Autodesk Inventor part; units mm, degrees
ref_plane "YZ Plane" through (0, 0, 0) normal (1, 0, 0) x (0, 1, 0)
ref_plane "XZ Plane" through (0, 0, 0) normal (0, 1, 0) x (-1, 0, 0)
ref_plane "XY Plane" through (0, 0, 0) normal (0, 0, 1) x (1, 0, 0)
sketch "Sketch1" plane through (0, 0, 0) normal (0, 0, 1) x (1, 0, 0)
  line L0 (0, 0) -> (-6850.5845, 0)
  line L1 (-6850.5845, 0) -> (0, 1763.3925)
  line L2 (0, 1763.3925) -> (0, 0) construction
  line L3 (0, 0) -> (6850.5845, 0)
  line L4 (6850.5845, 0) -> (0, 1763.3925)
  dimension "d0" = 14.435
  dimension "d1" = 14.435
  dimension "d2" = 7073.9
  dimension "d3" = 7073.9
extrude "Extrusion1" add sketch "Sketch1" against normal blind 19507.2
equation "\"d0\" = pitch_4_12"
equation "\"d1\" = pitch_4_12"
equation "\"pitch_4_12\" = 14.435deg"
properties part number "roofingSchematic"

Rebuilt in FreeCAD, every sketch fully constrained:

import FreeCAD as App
import Part
import Sketcher
from FreeCAD import Vector
Q = App.Units.Quantity


def add_polygon(sketch, points):
    """Adds a closed chain of lines whose ends are joined by coincident constraints."""
    first, n = sketch.GeometryCount, len(points)
    for a, b in zip(points, points[1:] + points[:1]):
        sketch.addGeometry(Part.LineSegment(App.Vector(*a, 0), App.Vector(*b, 0)), False)
    for i in range(n):
        sketch.addConstraint(Sketcher.Constraint("Coincident", first + i, 2, first + (i + 1) % n, 1))

doc = App.newDocument("Part")
body = doc.addObject("PartDesign::Body", "Body")

sketch1 = doc.addObject("Sketcher::SketchObject", "Sketch")
body.addObject(sketch1)
sketch1.AttachmentSupport = (doc.XY_Plane, [""])
sketch1.MapMode = "FlatFace"
add_polygon(sketch1, [(-6850.5845, 0), (6850.5845, 0), (0, 1763.3925)])
sketch1.addConstraint(Sketcher.Constraint("Horizontal", 0))
sketch1.addConstraint(Sketcher.Constraint("Symmetric", 0, 2, 2, 2, -1, 1))
sketch1.addConstraint(Sketcher.Constraint("PointOnObject", 1, 2, -2))
sketch1.addConstraint(Sketcher.Constraint("Distance", 1, Q("278.5 in")))
sketch1.addConstraint(Sketcher.Constraint("DistanceX", 0, 1, 0, 2, Q("539.4161 in")))
pad1 = doc.addObject("PartDesign::Pad", "Pad")
body.addObject(pad1)
pad1.Profile = sketch1
pad1.Length = Q("768 in")
pad1.Reversed = True

doc.recompute()
